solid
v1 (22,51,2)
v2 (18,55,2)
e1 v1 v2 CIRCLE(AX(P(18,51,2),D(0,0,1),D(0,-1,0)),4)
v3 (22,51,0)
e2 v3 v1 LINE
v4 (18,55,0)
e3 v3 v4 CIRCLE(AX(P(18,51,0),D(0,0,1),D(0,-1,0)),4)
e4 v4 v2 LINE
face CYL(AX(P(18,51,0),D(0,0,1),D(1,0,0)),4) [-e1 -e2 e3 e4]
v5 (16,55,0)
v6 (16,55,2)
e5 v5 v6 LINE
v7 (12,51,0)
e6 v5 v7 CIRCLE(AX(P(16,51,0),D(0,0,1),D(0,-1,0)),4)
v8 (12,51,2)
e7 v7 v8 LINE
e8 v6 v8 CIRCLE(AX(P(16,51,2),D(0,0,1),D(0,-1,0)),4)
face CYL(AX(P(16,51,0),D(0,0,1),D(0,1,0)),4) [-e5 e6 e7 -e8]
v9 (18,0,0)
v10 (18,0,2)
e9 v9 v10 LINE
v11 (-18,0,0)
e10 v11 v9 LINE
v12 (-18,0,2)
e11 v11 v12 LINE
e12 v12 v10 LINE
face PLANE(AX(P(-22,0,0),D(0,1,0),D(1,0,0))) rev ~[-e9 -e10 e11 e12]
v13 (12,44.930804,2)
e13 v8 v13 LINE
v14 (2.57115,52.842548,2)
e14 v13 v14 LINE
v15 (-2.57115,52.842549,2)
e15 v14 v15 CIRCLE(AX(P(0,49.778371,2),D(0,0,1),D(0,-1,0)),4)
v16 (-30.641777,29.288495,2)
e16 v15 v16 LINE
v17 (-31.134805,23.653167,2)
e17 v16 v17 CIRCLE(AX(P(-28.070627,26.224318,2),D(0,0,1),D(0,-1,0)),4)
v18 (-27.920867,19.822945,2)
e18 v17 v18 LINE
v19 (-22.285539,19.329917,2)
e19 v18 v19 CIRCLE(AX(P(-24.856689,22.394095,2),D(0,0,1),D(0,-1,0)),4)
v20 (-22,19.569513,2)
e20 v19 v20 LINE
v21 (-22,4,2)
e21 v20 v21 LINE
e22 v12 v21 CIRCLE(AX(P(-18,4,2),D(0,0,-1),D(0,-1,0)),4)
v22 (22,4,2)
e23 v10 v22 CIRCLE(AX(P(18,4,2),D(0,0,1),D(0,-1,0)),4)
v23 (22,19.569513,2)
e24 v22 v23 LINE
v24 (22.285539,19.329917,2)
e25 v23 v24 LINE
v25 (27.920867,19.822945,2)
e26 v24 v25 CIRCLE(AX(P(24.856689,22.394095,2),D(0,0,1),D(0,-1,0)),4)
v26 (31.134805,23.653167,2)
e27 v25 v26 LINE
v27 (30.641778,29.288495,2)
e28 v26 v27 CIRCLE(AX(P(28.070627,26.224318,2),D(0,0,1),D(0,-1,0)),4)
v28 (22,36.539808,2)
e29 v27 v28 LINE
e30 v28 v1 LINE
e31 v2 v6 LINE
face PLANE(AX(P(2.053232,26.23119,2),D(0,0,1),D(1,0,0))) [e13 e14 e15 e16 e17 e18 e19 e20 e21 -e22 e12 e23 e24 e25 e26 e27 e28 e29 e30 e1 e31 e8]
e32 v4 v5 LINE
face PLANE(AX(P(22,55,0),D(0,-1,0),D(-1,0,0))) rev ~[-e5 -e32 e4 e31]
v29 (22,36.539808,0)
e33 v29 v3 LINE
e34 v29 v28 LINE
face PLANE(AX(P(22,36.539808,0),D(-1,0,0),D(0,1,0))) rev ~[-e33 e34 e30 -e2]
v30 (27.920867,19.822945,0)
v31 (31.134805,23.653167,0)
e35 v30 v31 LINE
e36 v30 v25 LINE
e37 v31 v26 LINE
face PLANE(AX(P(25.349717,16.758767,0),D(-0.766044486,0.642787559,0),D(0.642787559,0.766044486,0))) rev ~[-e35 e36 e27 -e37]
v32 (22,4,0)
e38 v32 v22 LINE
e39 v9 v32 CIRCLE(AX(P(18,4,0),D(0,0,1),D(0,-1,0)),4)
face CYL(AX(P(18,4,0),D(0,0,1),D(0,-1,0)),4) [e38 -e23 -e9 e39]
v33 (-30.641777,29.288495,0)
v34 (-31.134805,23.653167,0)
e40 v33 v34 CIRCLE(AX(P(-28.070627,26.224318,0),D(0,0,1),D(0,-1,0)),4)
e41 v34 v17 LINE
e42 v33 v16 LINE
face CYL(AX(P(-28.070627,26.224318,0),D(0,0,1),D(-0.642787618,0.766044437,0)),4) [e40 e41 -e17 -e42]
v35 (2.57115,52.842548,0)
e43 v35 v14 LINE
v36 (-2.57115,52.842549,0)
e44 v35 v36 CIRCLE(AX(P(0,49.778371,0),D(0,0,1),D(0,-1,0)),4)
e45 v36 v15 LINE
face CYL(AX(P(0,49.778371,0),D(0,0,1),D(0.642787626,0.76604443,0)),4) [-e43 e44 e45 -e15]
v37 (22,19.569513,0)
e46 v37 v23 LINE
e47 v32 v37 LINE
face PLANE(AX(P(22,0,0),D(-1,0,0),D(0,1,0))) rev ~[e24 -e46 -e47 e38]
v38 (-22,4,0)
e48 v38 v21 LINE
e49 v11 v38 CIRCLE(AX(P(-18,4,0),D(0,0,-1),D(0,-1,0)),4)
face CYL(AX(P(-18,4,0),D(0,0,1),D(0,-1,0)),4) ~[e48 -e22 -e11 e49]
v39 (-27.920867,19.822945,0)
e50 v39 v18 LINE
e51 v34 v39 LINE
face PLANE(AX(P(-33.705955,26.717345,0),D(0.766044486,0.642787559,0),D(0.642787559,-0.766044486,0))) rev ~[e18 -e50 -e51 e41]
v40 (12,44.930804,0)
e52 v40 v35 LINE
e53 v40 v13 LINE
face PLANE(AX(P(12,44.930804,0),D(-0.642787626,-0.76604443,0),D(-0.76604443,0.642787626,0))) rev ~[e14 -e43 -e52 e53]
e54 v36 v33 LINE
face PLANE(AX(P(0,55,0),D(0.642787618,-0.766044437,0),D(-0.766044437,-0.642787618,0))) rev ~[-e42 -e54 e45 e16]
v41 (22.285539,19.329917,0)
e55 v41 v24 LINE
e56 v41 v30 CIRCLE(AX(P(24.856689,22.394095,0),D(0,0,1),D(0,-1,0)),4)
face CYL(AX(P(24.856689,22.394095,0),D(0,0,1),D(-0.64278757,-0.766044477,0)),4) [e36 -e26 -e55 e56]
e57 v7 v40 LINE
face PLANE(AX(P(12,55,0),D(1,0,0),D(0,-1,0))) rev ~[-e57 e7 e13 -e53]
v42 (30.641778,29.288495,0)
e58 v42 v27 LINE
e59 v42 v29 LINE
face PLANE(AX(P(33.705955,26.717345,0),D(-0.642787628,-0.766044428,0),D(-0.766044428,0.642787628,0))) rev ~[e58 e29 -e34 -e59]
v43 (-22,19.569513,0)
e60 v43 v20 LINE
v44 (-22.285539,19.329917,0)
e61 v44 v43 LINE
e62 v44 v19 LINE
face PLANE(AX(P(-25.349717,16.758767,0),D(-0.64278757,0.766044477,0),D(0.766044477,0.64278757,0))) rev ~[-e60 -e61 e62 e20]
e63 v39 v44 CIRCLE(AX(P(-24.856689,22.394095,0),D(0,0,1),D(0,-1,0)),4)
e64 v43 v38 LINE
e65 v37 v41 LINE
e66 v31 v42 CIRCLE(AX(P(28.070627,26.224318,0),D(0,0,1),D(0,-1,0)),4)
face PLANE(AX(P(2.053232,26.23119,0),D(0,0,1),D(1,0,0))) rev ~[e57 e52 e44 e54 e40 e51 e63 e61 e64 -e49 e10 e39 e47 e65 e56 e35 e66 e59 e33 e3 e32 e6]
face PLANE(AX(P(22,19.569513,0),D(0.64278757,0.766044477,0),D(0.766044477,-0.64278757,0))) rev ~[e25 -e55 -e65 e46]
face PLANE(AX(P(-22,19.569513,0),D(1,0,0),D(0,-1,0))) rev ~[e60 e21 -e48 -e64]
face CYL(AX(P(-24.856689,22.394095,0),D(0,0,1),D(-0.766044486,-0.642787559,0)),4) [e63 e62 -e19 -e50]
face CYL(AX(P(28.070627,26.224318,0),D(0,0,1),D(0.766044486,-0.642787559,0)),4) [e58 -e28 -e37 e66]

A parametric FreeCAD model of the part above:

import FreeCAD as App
import Part
import Sketcher

V = App.Vector
Q = App.Units.Quantity


def edges_at(feature, points):
    """Names of the edges that pass closest to the given points."""
    edges = feature.Shape.Edges
    near = lambda p: min(range(len(edges)), key=lambda i: edges[i].distToShape(Part.Vertex(*p))[0])
    return sorted({f"Edge{near(p) + 1}" for p in points})


def add_polygon(sketch, points):
    """Adds a closed chain of lines whose ends are joined by coincident constraints."""
    first, n = sketch.GeometryCount, len(points)
    for a, b in zip(points, points[1:] + points[:1]):
        sketch.addGeometry(Part.LineSegment(App.Vector(*a, 0), App.Vector(*b, 0)), False)
    for i in range(n):
        sketch.addConstraint(Sketcher.Constraint("Coincident", first + i, 2, first + (i + 1) % n, 1))

doc = App.newDocument("Part")
body = doc.addObject("PartDesign::Body", "Body")

# Sketch on XY plane
sketch1 = doc.addObject("Sketcher::SketchObject", "Sketch")
body.addObject(sketch1)
sketch1.AttachmentSupport = (doc.XY_Plane, [""])
sketch1.MapMode = "FlatFace"
add_polygon(sketch1, [(-22, 0), (22, 0), (22, 19.6), (25.3, 16.8), (33.7, 26.7), (22, 36.5), (22, 55), (12, 55), (12, 44.9), (0, 55), (-33.7, 26.7), (-25.3, 16.8), (-22, 19.6)])  # lines 0-12
sketch1.addConstraint([
    Sketcher.Constraint("Horizontal", 0),
    Sketcher.Constraint("Vertical", 1),
    Sketcher.Constraint("Vertical", 5),
    Sketcher.Constraint("Horizontal", 6),
    Sketcher.Constraint("Vertical", 7),
    Sketcher.Constraint("Vertical", 12),
    Sketcher.Constraint("Symmetric", 0, 2, 12, 2, -1, 1),
    Sketcher.Constraint("Symmetric", 3, 2, 9, 2, -2),
    Sketcher.Constraint("Symmetric", 2, 2, 10, 2, -2),
    Sketcher.Constraint("PointOnObject", 8, 2, -2),
    Sketcher.Constraint("Perpendicular", 2, 3),
    Sketcher.Constraint("Perpendicular", 3, 4),
    Sketcher.Constraint("Parallel", 4, 8),
    Sketcher.Constraint("Perpendicular", 9, 10),
    Sketcher.Constraint("Perpendicular", 10, 11),
    Sketcher.Constraint("Horizontal", 6, 2, 8, 2),
    Sketcher.Constraint("Vertical", 1, 2, 4, 2),
    Sketcher.Constraint("DistanceX", 0, 1, 0, 2, Q("44 mm")),
    Sketcher.Constraint("DistanceX", 6, 2, 6, 1, Q("10 mm")),
    Sketcher.Constraint("Angle", 2, Q("-39.999997 deg")),
    Sketcher.Constraint("Distance", 3, Q("13 mm")),
    Sketcher.Constraint("Distance", 9, Q("44 mm")),
    Sketcher.Constraint("DistanceY", -1, 1, 5, 2, Q("55 mm")),
])
pad1 = doc.addObject("PartDesign::Pad", "Pad")
body.addObject(pad1)
pad1.Profile = sketch1
pad1.Length = 2
doc.recompute()

fillet = doc.addObject("PartDesign::Fillet", "Fillet")
body.addObject(fillet)
fillet.Base = (pad1, edges_at(pad1, [
    (22, 0, 1),
    (25.35, 16.759, 1),
    (33.706, 26.717, 1),
    (12, 55, 1),
    (22, 55, 1),
    (0, 55, 1),
    (-33.706, 26.717, 1),
    (-25.35, 16.759, 1),
    (-22, 0, 1),
]))
fillet.Radius = 4

doc.recompute()
